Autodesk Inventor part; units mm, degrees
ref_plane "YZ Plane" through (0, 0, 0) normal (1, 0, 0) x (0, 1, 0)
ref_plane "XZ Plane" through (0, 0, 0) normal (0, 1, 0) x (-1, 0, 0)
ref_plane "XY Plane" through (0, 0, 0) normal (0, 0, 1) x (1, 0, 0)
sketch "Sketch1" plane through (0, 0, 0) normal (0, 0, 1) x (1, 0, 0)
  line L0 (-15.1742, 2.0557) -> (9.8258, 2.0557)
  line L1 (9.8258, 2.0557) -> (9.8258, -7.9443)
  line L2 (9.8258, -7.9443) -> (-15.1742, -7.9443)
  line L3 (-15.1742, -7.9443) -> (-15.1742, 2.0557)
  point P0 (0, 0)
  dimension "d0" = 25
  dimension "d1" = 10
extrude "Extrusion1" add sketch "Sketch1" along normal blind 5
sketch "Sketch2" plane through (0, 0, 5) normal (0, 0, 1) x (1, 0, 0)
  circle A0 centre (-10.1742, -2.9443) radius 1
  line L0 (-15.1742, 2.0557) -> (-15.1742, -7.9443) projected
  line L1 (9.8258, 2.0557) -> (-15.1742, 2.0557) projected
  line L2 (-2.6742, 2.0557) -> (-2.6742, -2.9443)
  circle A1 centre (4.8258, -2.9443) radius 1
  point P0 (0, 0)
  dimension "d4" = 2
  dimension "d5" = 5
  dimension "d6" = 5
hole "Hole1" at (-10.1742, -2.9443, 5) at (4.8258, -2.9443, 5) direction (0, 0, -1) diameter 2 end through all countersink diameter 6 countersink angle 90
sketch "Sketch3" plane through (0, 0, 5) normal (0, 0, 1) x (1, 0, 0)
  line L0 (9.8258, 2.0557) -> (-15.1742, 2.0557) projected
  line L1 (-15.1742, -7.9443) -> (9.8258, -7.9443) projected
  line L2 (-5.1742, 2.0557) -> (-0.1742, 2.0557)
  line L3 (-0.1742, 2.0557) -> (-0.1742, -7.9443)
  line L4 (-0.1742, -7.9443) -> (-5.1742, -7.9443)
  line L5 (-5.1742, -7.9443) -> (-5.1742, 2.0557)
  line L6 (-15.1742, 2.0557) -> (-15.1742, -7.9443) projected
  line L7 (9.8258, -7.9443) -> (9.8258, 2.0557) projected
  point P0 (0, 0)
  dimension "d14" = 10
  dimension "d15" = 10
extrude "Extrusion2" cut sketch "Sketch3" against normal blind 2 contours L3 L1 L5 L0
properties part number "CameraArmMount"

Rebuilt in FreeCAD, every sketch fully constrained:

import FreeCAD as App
import Part
import Sketcher
from FreeCAD import Vector

doc = App.newDocument("Part")
body = doc.addObject("PartDesign::Body", "Body")

# Sketch on XY plane
sketch1 = body.newObject("Sketcher::SketchObject", "Sketch")
sketch1.AttachmentSupport = (doc.getObject("XY_Plane"), [""])
sketch1.MapMode = "FlatFace"
sketch1.addGeometry([
    Part.LineSegment(Vector(9.8258, 2.0557, 0), Vector(-15.1742, 2.0557, 0)),
    Part.LineSegment(Vector(-15.1742, 2.0557, 0), Vector(-15.1742, -7.9443, 0)),
    Part.LineSegment(Vector(-15.1742, -7.9443, 0), Vector(9.8258, -7.9443, 0)),
    Part.LineSegment(Vector(9.8258, -7.9443, 0), Vector(9.8258, 2.0557, 0)),
], False)
sketch1.addConstraint([
    Sketcher.Constraint("Coincident", 0, 2, 1, 1),
    Sketcher.Constraint("Coincident", 1, 2, 2, 1),
    Sketcher.Constraint("Coincident", 2, 2, 3, 1),
    Sketcher.Constraint("Coincident", 3, 2, 0, 1),
    Sketcher.Constraint("Horizontal", 0),
    Sketcher.Constraint("Vertical", 1),
    Sketcher.Constraint("Horizontal", 2),
    Sketcher.Constraint("Vertical", 3),
    Sketcher.Constraint("DistanceX", 0, 2, 0, 1, 25.0),
    Sketcher.Constraint("DistanceY", 1, 2, 1, 1, 10.0),
    Sketcher.Constraint("DistanceX", 0, 2, -1, 1, 15.1742),
    Sketcher.Constraint("DistanceY", -1, 1, 0, 2, 2.0557),
])
pad1 = body.newObject("PartDesign::Pad", "Pad")
pad1.Profile = sketch1
pad1.Length = 5

# Sketch on XY plane
sketch2 = body.newObject("Sketcher::SketchObject", "Sketch001")
sketch2.AttachmentSupport = (doc.getObject("XY_Plane"), [""])
sketch2.MapMode = "FlatFace"
sketch2.AttachmentOffset = App.Placement(Vector(0, 0, 5), App.Rotation())
sketch2.addGeometry([
    Part.Circle(Vector(-10.1742, -2.9443, 0), Vector(0, 0, 1), 1),
    Part.Circle(Vector(4.8258, -2.9443, 0), Vector(0, 0, 1), 1),
], False)
sketch2.addConstraint([
    Sketcher.Constraint("Equal", 0, 1),
    Sketcher.Constraint("Horizontal", 0, 3, 1, 3),
    Sketcher.Constraint("Diameter", 0, 2.0),
    Sketcher.Constraint("DistanceX", 0, 3, 1, 3, 15.0),
    Sketcher.Constraint("DistanceX", 0, 3, -1, 1, 10.1742),
    Sketcher.Constraint("DistanceY", 0, 3, -1, 1, 2.9443),
])
doc.recompute()
hole = body.newObject("PartDesign::Hole", "Hole")
hole.Profile = sketch2
hole.ThreadType = "None"
hole.Diameter = 2
hole.DepthType = "ThroughAll"
hole.HoleCutType = "Countersink"
hole.HoleCutDiameter = 6
hole.HoleCutCountersinkAngle = 90

# Sketch on XY plane
sketch3 = body.newObject("Sketcher::SketchObject", "Sketch002")
sketch3.AttachmentSupport = (doc.getObject("XY_Plane"), [""])
sketch3.MapMode = "FlatFace"
sketch3.AttachmentOffset = App.Placement(Vector(0, 0, 5), App.Rotation())
sketch3.addGeometry([
    Part.LineSegment(Vector(-0.1742, -7.9443, 0), Vector(-0.1742, 2.0557, 0)),
    Part.LineSegment(Vector(-0.1742, 2.0557, 0), Vector(-5.1742, 2.0557, 0)),
    Part.LineSegment(Vector(-5.1742, 2.0557, 0), Vector(-5.1742, -7.9443, 0)),
    Part.LineSegment(Vector(-5.1742, -7.9443, 0), Vector(-0.1742, -7.9443, 0)),
], False)
sketch3.addConstraint([
    Sketcher.Constraint("Coincident", 0, 2, 1, 1),
    Sketcher.Constraint("Coincident", 1, 2, 2, 1),
    Sketcher.Constraint("Coincident", 2, 2, 3, 1),
    Sketcher.Constraint("Coincident", 3, 2, 0, 1),
    Sketcher.Constraint("Vertical", 0),
    Sketcher.Constraint("Horizontal", 1),
    Sketcher.Constraint("Vertical", 2),
    Sketcher.Constraint("Horizontal", 3),
    Sketcher.Constraint("DistanceY", 0, 1, 0, 2, 10.0),
    Sketcher.Constraint("DistanceX", 1, 2, 1, 1, 5.0),
    Sketcher.Constraint("DistanceX", 0, 2, -1, 1, 0.1742),
    Sketcher.Constraint("DistanceY", -1, 1, 0, 2, 2.0557),
])
pocket1 = body.newObject("PartDesign::Pocket", "Pocket")
pocket1.Profile = sketch3
pocket1.Length = 2

doc.recompute()
